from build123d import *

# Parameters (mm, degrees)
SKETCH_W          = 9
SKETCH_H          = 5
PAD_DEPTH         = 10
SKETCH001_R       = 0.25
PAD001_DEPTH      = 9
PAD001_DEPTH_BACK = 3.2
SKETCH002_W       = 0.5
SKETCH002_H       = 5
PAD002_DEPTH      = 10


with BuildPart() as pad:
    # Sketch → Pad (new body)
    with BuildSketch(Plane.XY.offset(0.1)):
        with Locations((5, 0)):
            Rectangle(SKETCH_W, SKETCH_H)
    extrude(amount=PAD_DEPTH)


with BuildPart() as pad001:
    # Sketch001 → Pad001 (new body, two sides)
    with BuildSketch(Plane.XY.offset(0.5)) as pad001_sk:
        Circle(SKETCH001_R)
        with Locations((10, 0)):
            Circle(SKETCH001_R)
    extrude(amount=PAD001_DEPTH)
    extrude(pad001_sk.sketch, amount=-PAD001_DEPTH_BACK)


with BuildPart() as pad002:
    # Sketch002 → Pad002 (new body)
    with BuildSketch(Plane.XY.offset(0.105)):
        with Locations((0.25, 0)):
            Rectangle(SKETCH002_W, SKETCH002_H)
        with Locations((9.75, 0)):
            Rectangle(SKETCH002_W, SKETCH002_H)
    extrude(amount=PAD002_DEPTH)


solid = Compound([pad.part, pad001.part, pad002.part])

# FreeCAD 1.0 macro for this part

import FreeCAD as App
import Part
import Sketcher

V = App.Vector
Q = App.Units.Quantity


def add_polygon(sketch, points):
    """Adds a closed chain of lines whose ends are joined by coincident constraints."""
    first, n = sketch.GeometryCount, len(points)
    for a, b in zip(points, points[1:] + points[:1]):
        sketch.addGeometry(Part.LineSegment(App.Vector(*a, 0), App.Vector(*b, 0)), False)
    for i in range(n):
        sketch.addConstraint(Sketcher.Constraint("Coincident", first + i, 2, first + (i + 1) % n, 1))

doc = App.newDocument("Part")
body = doc.addObject("PartDesign::Body", "Body")

# Sketch on XY plane
sketch1 = body.newObject("Sketcher::SketchObject", "Sketch")
sketch1.AttachmentSupport = (doc.getObject("XY_Plane"), [""])
sketch1.MapMode = "FlatFace"
sketch1.AttachmentOffset = App.Placement(V(0, 0, 0.1), App.Rotation())
add_polygon(sketch1, [(0, 2), (0, -2), (10, -2), (10, 2)])  # lines 0-3
sketch1.addConstraint([
    Sketcher.Constraint("Vertical", 0),
    Sketcher.Constraint("Horizontal", 1),
    Sketcher.Constraint("Vertical", 2),
    Sketcher.Constraint("Horizontal", 3),
    Sketcher.Constraint("DistanceX", 1, 1, 1, 2, Q("9 mm")),
    Sketcher.Constraint("DistanceY", 0, 2, 0, 1, Q("5 mm")),
    Sketcher.Constraint("DistanceX", -1, 1, 0, 2, Q("0.5 mm")),
    Sketcher.Constraint("DistanceY", 0, 2, -1, 1, Q("2.5 mm")),
])
pad1 = body.newObject("PartDesign::Pad", "Pad")
pad1.Profile = sketch1
pad1.Length = 10
body2 = doc.addObject("PartDesign::Body", "Body001")
body2.AllowCompound = True

# Sketch on XY plane
sketch2 = body2.newObject("Sketcher::SketchObject", "Sketch001")
sketch2.AttachmentSupport = (doc.getObject("XY_Plane001"), [""])
sketch2.MapMode = "FlatFace"
sketch2.AttachmentOffset = App.Placement(V(0, 0, 0.5), App.Rotation())
sketch2.addGeometry([
    Part.Circle(V(0, 0, 0), V(0, 0, 1), 0.25),
    Part.Circle(V(10, 0, 0), V(0, 0, 1), 0.25),
], False)
sketch2.addConstraint([
    Sketcher.Constraint("Coincident", 0, 3, -1, 1),
    Sketcher.Constraint("Equal", 0, 1),
    Sketcher.Constraint("PointOnObject", 1, 3, -1),
    Sketcher.Constraint("Diameter", 0, Q("0.5 mm")),
    Sketcher.Constraint("DistanceX", -1, 1, 1, 3, Q("10 mm")),
])
pad2 = body2.newObject("PartDesign::Pad", "Pad001")
pad2.Profile = sketch2
pad2.Type = "TwoLengths"
pad2.Length = 9
pad2.Length2 = 3.2
body3 = doc.addObject("PartDesign::Body", "Body002")
body3.AllowCompound = True

# Sketch on XY plane
sketch3 = body3.newObject("Sketcher::SketchObject", "Sketch002")
sketch3.AttachmentSupport = (doc.getObject("XY_Plane002"), [""])
sketch3.MapMode = "FlatFace"
sketch3.AttachmentOffset = App.Placement(V(0, 0, 0.105), App.Rotation())
add_polygon(sketch3, [(0, 2.5), (0, -2.5), (0.5, -2.5), (0.5, 2.5)])  # lines 0-3
add_polygon(sketch3, [(9.5, 2.5), (9.5, -2.5), (10, -2.5), (10, 2.5)])  # lines 4-7
sketch3.addConstraint([
    Sketcher.Constraint("Vertical", 0),
    Sketcher.Constraint("Horizontal", 1),
    Sketcher.Constraint("Vertical", 2),
    Sketcher.Constraint("Horizontal", 3),
    Sketcher.Constraint("Vertical", 4),
    Sketcher.Constraint("Horizontal", 5),
    Sketcher.Constraint("Vertical", 6),
    Sketcher.Constraint("Horizontal", 7),
    Sketcher.Constraint("Symmetric", 0, 2, 3, 2, -1, 1),
    Sketcher.Constraint("Horizontal", 1, 2, 4, 2),
    Sketcher.Constraint("Horizontal", 3, 2, 6, 2),
    Sketcher.Constraint("Equal", 3, 5),
    Sketcher.Constraint("DistanceY", 0, 2, 0, 1, Q("5 mm")),
    Sketcher.Constraint("DistanceX", 1, 1, 1, 2, Q("0.5 mm")),
    Sketcher.Constraint("DistanceX", -1, 1, 5, 2, Q("10 mm")),
])
pad3 = body3.newObject("PartDesign::Pad", "Pad002")
pad3.Profile = sketch3
pad3.Length = 10

doc.recompute()
